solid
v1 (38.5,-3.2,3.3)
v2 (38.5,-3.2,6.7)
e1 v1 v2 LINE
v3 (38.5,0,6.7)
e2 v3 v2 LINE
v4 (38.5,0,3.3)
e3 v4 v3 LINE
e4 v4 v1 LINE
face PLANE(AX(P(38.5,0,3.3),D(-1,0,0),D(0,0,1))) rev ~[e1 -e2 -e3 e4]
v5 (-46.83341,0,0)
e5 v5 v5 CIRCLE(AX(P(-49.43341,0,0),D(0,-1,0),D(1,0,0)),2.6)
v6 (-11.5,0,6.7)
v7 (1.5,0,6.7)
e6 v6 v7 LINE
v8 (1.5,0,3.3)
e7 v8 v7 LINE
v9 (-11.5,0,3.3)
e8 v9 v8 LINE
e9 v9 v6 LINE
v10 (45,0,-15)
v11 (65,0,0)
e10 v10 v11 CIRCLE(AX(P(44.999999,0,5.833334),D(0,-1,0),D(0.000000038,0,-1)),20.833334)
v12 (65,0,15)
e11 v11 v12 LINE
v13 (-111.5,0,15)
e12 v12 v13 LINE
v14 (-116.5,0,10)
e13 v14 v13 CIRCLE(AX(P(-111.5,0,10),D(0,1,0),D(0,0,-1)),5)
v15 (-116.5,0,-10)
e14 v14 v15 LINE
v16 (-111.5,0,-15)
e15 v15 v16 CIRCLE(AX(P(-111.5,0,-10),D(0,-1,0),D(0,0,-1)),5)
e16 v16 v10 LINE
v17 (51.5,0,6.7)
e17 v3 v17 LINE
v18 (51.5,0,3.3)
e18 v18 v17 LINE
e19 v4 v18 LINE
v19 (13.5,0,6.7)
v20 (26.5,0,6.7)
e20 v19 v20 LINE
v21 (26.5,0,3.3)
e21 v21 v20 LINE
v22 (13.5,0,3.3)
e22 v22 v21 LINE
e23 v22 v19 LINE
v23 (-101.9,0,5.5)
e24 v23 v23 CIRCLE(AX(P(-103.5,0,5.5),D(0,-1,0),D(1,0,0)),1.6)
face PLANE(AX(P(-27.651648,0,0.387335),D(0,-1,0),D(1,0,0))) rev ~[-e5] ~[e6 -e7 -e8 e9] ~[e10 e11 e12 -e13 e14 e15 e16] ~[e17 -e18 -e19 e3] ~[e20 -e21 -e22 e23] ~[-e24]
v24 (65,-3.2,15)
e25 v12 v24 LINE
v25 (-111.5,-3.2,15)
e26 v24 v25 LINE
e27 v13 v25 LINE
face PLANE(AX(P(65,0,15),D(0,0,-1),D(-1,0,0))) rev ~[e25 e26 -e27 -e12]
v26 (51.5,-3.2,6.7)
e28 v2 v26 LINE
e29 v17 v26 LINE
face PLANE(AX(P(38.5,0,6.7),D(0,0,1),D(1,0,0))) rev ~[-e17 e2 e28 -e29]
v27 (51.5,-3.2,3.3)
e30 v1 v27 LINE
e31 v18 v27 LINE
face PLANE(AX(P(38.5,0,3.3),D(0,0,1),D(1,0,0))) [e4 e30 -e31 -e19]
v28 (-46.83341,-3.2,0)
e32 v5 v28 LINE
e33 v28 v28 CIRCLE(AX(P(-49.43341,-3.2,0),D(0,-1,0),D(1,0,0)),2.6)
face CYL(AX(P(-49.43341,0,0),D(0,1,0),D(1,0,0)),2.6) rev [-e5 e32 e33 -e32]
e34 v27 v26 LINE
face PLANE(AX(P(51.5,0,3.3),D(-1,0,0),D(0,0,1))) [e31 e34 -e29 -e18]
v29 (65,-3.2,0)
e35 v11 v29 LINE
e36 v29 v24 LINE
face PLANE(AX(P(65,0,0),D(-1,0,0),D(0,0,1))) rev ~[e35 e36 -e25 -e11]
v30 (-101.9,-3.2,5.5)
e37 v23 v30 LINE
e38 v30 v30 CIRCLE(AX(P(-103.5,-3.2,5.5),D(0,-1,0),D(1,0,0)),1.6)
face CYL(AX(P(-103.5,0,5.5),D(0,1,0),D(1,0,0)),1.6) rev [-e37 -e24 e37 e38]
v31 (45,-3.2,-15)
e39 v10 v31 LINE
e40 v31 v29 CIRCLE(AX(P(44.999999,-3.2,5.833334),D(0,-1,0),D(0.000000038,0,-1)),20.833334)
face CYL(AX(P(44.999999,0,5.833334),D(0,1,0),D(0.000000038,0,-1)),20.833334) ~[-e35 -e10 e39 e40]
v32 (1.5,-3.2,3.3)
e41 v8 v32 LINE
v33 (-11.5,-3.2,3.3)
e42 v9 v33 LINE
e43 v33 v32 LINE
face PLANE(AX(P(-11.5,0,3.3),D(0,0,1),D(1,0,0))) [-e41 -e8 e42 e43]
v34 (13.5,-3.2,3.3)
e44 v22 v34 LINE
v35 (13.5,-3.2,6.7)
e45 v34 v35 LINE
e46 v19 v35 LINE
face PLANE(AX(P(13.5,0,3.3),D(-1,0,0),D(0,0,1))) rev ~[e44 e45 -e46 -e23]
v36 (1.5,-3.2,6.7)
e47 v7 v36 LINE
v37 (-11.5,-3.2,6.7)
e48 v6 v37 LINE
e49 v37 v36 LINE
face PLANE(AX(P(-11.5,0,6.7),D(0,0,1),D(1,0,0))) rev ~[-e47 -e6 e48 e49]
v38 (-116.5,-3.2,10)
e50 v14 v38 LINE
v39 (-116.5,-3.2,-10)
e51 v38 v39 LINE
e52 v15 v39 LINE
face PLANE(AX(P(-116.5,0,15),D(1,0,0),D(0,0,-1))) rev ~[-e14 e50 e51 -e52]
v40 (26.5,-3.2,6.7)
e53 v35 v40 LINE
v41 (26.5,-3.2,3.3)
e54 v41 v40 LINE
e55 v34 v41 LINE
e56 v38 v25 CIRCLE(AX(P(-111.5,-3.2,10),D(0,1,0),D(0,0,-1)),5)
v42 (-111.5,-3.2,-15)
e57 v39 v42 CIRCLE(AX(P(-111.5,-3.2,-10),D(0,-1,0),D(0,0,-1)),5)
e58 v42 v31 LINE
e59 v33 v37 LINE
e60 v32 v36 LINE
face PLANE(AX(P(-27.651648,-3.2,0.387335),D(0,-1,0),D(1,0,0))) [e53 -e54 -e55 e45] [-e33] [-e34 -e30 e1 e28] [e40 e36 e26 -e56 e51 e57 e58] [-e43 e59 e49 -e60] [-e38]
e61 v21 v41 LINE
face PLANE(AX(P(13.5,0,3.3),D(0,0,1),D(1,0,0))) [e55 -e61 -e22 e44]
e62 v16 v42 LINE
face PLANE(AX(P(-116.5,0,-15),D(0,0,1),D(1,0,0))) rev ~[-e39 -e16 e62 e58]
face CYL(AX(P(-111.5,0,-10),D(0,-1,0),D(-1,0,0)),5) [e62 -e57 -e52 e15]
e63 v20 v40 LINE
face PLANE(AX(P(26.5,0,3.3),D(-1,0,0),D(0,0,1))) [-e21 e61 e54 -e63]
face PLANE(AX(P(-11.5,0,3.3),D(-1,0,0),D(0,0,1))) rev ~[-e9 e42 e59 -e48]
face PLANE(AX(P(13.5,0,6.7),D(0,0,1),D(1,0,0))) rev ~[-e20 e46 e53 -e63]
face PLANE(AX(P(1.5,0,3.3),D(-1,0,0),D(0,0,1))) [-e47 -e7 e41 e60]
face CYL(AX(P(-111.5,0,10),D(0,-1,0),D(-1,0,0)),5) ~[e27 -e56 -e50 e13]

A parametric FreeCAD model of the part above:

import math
import FreeCAD as App
import Part
import Sketcher


def edges_at(feature, points):
    """Names of the edges that pass closest to the given points."""
    edges = feature.Shape.Edges
    near = lambda p: min(range(len(edges)), key=lambda i: edges[i].distToShape(Part.Vertex(*p))[0])
    return sorted({f"Edge{near(p) + 1}" for p in points})

doc = App.newDocument("Part")
body = doc.addObject("PartDesign::Body", "Body")

# Sketch on XZ plane
sketch1 = body.newObject("Sketcher::SketchObject", "Sketch")
sketch1.AttachmentSupport = (doc.getObject("XZ_Plane"), [""])
sketch1.MapMode = "FlatFace"
sketch1.addGeometry(Part.LineSegment(App.Vector(-116.5, 15, 0), App.Vector(-116.5, -15, 0)), False)
sketch1.addGeometry(Part.LineSegment(App.Vector(-116.5, -15, 0), App.Vector(45, -15, 0)), False)
sketch1.addGeometry(Part.ArcOfCircle(Part.Circle(App.Vector(45, 5.8, 0), App.Vector(0, 0, 1), 20.8), math.radians(-90), math.radians(-16)), False)
sketch1.addGeometry(Part.LineSegment(App.Vector(65, 0, 0), App.Vector(65, 15, 0)), False)
sketch1.addGeometry(Part.LineSegment(App.Vector(65, 15, 0), App.Vector(-116.5, 15, 0)), False)
sketch1.addGeometry(Part.Circle(App.Vector(-49.4, 0, 0), App.Vector(0, 0, 1), 2.6), False)
sketch1.addGeometry(Part.Circle(App.Vector(-103.5, 5.5, 0), App.Vector(0, 0, 1), 1.6), False)
sketch1.addGeometry(Part.LineSegment(App.Vector(1.5, 3.3, 0), App.Vector(-11.5, 3.3, 0)), False)
sketch1.addGeometry(Part.LineSegment(App.Vector(-11.5, 3.3, 0), App.Vector(-11.5, 6.7, 0)), False)
sketch1.addGeometry(Part.LineSegment(App.Vector(-11.5, 6.7, 0), App.Vector(1.5, 6.7, 0)), False)
sketch1.addGeometry(Part.LineSegment(App.Vector(1.5, 6.7, 0), App.Vector(1.5, 3.3, 0)), False)
sketch1.addGeometry(Part.LineSegment(App.Vector(26.5, 3.3, 0), App.Vector(13.5, 3.3, 0)), False)
sketch1.addGeometry(Part.LineSegment(App.Vector(13.5, 3.3, 0), App.Vector(13.5, 6.7, 0)), False)
sketch1.addGeometry(Part.LineSegment(App.Vector(13.5, 6.7, 0), App.Vector(26.5, 6.7, 0)), False)
sketch1.addGeometry(Part.LineSegment(App.Vector(26.5, 6.7, 0), App.Vector(26.5, 3.3, 0)), False)
sketch1.addGeometry(Part.LineSegment(App.Vector(51.5, 3.3, 0), App.Vector(38.5, 3.3, 0)), False)
sketch1.addGeometry(Part.LineSegment(App.Vector(38.5, 3.3, 0), App.Vector(38.5, 6.7, 0)), False)
sketch1.addGeometry(Part.LineSegment(App.Vector(38.5, 6.7, 0), App.Vector(51.5, 6.7, 0)), False)
sketch1.addGeometry(Part.LineSegment(App.Vector(51.5, 6.7, 0), App.Vector(51.5, 3.3, 0)), False)
sketch1.addConstraint(Sketcher.Constraint("Coincident", 0, 2, 1, 1))
sketch1.addConstraint(Sketcher.Constraint("Tangent", 1, 2, 2, 1))
sketch1.addConstraint(Sketcher.Constraint("Coincident", 2, 2, 3, 1))
sketch1.addConstraint(Sketcher.Constraint("Coincident", 3, 2, 4, 1))
sketch1.addConstraint(Sketcher.Constraint("Coincident", 4, 2, 0, 1))
sketch1.addConstraint(Sketcher.Constraint("Coincident", 7, 2, 8, 1))
sketch1.addConstraint(Sketcher.Constraint("Coincident", 8, 2, 9, 1))
sketch1.addConstraint(Sketcher.Constraint("Coincident", 9, 2, 10, 1))
sketch1.addConstraint(Sketcher.Constraint("Coincident", 10, 2, 7, 1))
sketch1.addConstraint(Sketcher.Constraint("Coincident", 11, 2, 12, 1))
sketch1.addConstraint(Sketcher.Constraint("Coincident", 12, 2, 13, 1))
sketch1.addConstraint(Sketcher.Constraint("Coincident", 13, 2, 14, 1))
sketch1.addConstraint(Sketcher.Constraint("Coincident", 14, 2, 11, 1))
sketch1.addConstraint(Sketcher.Constraint("Coincident", 15, 2, 16, 1))
sketch1.addConstraint(Sketcher.Constraint("Coincident", 16, 2, 17, 1))
sketch1.addConstraint(Sketcher.Constraint("Coincident", 17, 2, 18, 1))
sketch1.addConstraint(Sketcher.Constraint("Coincident", 18, 2, 15, 1))
sketch1.addConstraint(Sketcher.Constraint("Vertical", 0))
sketch1.addConstraint(Sketcher.Constraint("Horizontal", 1))
sketch1.addConstraint(Sketcher.Constraint("Vertical", 3))
sketch1.addConstraint(Sketcher.Constraint("Horizontal", 4))
sketch1.addConstraint(Sketcher.Constraint("Horizontal", 7))
sketch1.addConstraint(Sketcher.Constraint("Vertical", 8))
sketch1.addConstraint(Sketcher.Constraint("Horizontal", 9))
sketch1.addConstraint(Sketcher.Constraint("Vertical", 10))
sketch1.addConstraint(Sketcher.Constraint("Horizontal", 11))
sketch1.addConstraint(Sketcher.Constraint("Vertical", 12))
sketch1.addConstraint(Sketcher.Constraint("Horizontal", 13))
sketch1.addConstraint(Sketcher.Constraint("Vertical", 14))
sketch1.addConstraint(Sketcher.Constraint("Horizontal", 15))
sketch1.addConstraint(Sketcher.Constraint("Vertical", 16))
sketch1.addConstraint(Sketcher.Constraint("Horizontal", 17))
sketch1.addConstraint(Sketcher.Constraint("Vertical", 18))
sketch1.addConstraint(Sketcher.Constraint("PointOnObject", 5, 3, -1))
sketch1.addConstraint(Sketcher.Constraint("PointOnObject", 2, 2, -1))
sketch1.addConstraint(Sketcher.Constraint("Horizontal", 10, 2, 11, 2))
sketch1.addConstraint(Sketcher.Constraint("Horizontal", 9, 2, 12, 2))
sketch1.addConstraint(Sketcher.Constraint("Horizontal", 14, 2, 15, 2))
sketch1.addConstraint(Sketcher.Constraint("Horizontal", 13, 2, 16, 2))
sketch1.addConstraint(Sketcher.Constraint("Equal", 9, 11))
sketch1.addConstraint(Sketcher.Constraint("Equal", 13, 15))
sketch1.addConstraint(Sketcher.Constraint("Diameter", 5, 5.2))
sketch1.addConstraint(Sketcher.Constraint("Diameter", 6, 3.2))
sketch1.addConstraint(Sketcher.Constraint("DistanceX", 7, 2, 7, 1, 13.0))
sketch1.addConstraint(Sketcher.Constraint("DistanceY", 0, 2, 0, 1, 30.0))
sketch1.addConstraint(Sketcher.Constraint("DistanceY", 3, 1, 3, 2, 15.0))
sketch1.addConstraint(Sketcher.Constraint("DistanceX", 1, 1, 1, 2, 161.5))
sketch1.addConstraint(Sketcher.Constraint("DistanceX", 4, 2, 4, 1, 181.5))
sketch1.addConstraint(Sketcher.Constraint("DistanceY", 8, 1, 8, 2, 3.4))
sketch1.addConstraint(Sketcher.Constraint("DistanceX", -1, 1, 2, 3, 44.999999))
sketch1.addConstraint(Sketcher.Constraint("DistanceX", 0, 2, 6, 3, 13.0))
sketch1.addConstraint(Sketcher.Constraint("DistanceX", 10, 2, 11, 2, 12.0))
sketch1.addConstraint(Sketcher.Constraint("DistanceX", 14, 2, 15, 2, 12.0))
sketch1.addConstraint(Sketcher.Constraint("DistanceY", -1, 1, 6, 3, 5.5))
sketch1.addConstraint(Sketcher.Constraint("DistanceX", 7, 2, -1, 1, 11.5))
sketch1.addConstraint(Sketcher.Constraint("DistanceY", -1, 1, 7, 2, 3.3))
sketch1.addConstraint(Sketcher.Constraint("DistanceX", 5, 3, -1, 1, 49.43341))
pad1 = body.newObject("PartDesign::Pad", "Pad")
pad1.Profile = sketch1
pad1.Length = 3.2
doc.recompute()

fillet = body.newObject("PartDesign::Fillet", "Fillet")
fillet.Base = (pad1, edges_at(pad1, [(-116.5, -1.6, 15), (-116.5, -1.6, -15)]))
fillet.Radius = 5

doc.recompute()
